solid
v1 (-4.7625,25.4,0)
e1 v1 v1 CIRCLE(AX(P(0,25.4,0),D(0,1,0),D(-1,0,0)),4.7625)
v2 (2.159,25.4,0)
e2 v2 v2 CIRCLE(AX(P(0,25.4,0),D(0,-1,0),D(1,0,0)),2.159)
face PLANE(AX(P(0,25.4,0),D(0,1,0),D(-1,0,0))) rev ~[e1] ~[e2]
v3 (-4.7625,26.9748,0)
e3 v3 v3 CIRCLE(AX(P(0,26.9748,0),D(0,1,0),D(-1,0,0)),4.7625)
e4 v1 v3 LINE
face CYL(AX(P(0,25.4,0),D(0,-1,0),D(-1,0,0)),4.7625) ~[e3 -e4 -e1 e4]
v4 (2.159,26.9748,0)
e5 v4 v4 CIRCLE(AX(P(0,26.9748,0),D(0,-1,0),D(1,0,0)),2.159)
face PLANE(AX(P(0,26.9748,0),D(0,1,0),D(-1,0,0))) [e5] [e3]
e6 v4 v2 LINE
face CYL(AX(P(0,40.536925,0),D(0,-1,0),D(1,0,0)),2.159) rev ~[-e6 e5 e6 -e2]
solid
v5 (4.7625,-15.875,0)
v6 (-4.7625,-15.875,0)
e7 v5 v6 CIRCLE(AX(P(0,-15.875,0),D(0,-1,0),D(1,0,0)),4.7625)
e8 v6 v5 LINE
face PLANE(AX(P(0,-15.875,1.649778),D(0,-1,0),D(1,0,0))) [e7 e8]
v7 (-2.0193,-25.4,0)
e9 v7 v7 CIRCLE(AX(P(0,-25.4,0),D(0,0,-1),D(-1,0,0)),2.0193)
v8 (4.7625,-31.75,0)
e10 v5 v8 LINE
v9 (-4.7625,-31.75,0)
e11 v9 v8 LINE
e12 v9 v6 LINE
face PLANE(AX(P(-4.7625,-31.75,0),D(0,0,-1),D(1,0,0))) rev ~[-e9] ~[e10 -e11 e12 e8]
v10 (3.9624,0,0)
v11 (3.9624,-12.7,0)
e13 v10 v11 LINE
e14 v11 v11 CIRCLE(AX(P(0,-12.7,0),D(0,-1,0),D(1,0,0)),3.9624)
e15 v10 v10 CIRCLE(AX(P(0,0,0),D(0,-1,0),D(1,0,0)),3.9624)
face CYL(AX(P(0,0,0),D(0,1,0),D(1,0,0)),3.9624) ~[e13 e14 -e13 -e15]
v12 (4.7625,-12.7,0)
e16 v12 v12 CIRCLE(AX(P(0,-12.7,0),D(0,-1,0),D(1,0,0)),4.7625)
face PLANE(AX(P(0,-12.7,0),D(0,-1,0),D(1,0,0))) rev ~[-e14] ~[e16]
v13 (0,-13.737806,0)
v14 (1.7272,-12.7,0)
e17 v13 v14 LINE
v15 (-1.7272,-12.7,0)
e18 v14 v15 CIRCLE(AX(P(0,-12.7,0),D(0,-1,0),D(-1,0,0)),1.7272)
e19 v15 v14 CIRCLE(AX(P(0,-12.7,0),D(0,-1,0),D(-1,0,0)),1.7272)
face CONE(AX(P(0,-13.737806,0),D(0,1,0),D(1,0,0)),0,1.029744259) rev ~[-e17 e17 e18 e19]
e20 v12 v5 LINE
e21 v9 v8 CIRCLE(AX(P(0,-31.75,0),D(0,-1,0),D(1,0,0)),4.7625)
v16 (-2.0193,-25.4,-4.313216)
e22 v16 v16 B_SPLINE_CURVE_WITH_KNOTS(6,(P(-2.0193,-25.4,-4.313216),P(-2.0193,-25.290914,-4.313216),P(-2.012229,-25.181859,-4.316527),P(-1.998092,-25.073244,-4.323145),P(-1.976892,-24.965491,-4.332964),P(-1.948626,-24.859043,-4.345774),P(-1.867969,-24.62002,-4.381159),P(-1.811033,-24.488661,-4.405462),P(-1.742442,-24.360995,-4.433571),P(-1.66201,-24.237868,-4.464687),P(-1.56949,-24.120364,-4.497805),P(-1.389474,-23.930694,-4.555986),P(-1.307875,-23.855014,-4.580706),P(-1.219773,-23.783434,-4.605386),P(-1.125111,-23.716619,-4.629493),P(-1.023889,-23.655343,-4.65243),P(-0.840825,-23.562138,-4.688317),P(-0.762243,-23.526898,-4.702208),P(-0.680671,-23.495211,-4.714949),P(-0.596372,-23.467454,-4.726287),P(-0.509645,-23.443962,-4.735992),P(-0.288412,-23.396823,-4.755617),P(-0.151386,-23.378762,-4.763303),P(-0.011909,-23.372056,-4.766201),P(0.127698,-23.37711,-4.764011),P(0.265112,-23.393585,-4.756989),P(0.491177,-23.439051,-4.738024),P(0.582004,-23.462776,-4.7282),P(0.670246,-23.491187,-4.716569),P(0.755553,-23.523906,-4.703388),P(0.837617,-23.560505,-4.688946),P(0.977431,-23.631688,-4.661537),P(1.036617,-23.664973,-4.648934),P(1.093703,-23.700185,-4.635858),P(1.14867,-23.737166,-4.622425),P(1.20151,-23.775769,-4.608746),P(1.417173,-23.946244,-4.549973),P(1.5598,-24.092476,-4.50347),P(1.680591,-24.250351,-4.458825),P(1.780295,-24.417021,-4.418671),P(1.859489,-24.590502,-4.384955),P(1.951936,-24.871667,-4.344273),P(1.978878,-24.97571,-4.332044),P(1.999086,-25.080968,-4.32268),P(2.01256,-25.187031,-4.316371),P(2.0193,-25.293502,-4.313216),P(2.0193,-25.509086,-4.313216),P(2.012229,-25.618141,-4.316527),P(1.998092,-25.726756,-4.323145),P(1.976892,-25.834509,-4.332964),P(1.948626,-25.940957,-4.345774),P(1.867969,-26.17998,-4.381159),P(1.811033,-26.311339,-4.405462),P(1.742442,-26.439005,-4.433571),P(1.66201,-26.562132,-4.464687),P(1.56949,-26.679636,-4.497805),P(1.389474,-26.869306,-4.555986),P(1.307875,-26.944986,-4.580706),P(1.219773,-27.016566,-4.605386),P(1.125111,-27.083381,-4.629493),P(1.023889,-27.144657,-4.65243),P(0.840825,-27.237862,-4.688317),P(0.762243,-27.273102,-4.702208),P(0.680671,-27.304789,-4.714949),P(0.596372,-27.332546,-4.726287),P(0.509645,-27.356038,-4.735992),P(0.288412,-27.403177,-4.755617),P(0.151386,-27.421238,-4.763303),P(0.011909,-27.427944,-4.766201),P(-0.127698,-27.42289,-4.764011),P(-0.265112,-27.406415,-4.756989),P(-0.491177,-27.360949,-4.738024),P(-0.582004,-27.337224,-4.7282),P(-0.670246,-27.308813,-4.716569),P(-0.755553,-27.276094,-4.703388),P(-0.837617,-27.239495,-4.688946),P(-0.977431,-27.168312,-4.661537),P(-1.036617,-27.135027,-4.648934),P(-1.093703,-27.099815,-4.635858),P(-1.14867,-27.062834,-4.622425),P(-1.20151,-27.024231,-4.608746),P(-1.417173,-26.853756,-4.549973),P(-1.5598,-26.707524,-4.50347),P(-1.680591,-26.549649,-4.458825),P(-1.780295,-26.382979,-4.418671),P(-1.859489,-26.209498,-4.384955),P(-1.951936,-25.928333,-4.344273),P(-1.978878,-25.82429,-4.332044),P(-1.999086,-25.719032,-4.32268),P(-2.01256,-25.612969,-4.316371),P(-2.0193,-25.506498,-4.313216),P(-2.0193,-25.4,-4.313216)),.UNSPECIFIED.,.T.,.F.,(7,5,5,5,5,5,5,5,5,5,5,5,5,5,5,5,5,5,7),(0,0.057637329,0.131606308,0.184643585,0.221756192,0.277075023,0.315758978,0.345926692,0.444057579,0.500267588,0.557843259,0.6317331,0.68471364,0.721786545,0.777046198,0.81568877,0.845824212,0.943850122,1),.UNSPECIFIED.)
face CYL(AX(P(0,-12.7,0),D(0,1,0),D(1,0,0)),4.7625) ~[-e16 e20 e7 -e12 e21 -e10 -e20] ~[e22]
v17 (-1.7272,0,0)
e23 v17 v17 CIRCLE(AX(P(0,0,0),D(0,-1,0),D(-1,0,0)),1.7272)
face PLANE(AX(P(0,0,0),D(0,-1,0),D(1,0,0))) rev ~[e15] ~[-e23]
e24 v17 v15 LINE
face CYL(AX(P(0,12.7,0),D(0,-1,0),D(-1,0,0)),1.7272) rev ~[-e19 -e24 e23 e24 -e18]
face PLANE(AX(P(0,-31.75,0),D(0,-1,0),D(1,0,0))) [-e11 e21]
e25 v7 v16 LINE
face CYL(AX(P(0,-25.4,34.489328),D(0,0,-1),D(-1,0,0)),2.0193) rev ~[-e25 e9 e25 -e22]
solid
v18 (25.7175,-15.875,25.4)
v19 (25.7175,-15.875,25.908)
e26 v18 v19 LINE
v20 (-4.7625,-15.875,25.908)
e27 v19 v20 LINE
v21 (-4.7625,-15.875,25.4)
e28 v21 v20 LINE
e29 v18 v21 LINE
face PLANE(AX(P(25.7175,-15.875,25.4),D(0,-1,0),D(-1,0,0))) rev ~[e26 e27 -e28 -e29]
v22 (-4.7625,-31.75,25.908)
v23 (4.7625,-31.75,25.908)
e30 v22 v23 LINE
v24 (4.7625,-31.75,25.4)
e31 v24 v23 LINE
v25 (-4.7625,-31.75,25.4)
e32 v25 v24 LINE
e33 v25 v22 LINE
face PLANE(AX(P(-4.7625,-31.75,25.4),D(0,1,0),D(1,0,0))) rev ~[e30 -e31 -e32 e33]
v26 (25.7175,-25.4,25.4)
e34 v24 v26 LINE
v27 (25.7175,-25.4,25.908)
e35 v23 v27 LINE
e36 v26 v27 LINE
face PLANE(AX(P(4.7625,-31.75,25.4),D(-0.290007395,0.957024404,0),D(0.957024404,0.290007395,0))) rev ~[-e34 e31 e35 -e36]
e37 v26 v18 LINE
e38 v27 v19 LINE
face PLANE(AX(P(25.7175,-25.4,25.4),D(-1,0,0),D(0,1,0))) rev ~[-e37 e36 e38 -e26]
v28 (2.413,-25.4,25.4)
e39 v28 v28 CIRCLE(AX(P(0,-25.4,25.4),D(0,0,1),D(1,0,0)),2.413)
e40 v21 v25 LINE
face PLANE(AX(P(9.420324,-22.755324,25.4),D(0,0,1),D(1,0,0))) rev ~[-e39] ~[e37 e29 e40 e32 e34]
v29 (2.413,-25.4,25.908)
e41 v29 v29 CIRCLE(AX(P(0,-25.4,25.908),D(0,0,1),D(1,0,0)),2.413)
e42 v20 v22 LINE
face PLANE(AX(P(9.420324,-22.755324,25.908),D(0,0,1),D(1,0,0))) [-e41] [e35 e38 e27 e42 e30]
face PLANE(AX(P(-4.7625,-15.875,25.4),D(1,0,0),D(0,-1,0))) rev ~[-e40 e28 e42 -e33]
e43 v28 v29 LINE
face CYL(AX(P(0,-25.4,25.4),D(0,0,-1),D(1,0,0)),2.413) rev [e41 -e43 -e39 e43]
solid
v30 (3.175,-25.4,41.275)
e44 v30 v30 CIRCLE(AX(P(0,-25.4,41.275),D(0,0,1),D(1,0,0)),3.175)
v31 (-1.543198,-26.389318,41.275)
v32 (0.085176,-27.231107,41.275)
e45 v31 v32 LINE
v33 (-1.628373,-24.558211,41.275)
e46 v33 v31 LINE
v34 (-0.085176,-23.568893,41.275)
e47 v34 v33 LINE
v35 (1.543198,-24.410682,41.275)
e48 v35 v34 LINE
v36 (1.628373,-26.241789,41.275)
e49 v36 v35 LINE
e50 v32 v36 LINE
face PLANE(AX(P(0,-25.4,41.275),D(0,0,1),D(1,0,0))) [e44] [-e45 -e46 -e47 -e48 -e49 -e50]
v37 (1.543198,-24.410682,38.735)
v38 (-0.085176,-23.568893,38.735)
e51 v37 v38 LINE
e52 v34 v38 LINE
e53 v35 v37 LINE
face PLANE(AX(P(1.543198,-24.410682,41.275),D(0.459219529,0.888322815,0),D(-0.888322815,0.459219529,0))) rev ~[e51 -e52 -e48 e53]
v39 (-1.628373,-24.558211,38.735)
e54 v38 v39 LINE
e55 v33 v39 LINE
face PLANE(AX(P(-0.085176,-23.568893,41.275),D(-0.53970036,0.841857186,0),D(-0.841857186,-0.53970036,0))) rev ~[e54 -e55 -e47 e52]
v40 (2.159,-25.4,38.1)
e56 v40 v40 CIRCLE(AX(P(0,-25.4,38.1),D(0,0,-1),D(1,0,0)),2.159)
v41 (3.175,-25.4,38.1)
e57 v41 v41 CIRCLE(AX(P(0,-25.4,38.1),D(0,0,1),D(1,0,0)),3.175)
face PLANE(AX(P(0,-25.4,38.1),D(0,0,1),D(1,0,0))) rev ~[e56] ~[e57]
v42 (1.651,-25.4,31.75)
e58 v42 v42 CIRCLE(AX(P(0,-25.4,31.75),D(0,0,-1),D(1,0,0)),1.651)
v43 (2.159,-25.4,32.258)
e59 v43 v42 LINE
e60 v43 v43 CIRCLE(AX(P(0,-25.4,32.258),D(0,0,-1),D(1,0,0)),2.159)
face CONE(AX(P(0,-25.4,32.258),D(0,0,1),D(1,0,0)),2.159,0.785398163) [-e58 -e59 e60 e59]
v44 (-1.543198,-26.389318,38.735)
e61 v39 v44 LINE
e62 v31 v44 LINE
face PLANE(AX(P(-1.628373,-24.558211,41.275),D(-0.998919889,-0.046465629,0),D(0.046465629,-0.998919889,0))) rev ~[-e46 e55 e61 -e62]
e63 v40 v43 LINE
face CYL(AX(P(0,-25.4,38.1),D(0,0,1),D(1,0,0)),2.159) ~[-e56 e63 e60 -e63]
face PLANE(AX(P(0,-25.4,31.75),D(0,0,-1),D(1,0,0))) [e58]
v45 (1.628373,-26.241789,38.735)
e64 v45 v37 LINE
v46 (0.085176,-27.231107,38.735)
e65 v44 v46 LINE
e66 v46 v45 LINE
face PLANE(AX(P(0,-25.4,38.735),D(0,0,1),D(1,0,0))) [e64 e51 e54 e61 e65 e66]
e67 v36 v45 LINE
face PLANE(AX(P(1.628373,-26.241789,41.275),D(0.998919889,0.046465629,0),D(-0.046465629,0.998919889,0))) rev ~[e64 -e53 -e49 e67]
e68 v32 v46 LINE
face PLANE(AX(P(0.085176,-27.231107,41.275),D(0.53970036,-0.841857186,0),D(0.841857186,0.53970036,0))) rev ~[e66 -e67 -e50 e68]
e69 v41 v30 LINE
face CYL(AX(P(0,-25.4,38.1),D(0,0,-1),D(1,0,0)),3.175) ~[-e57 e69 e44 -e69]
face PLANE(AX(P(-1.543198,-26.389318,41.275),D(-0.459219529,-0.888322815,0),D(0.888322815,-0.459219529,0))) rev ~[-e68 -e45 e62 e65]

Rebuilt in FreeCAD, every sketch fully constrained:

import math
import FreeCAD as App
import Part
import Sketcher

V = App.Vector
Q = App.Units.Quantity


def edges_at(feature, points):
    """Names of the edges that pass closest to the given points."""
    edges = feature.Shape.Edges
    near = lambda p: min(range(len(edges)), key=lambda i: edges[i].distToShape(Part.Vertex(*p))[0])
    return sorted({f"Edge{near(p) + 1}" for p in points})

doc = App.newDocument("Part")
body = doc.addObject("PartDesign::Body", "Body")

# Sketch on XZ plane
sketch1 = body.newObject("Sketcher::SketchObject", "Sketch")
sketch1.AttachmentSupport = (doc.getObject("XZ_Plane"), [""])
sketch1.MapMode = "FlatFace"
sketch1.addGeometry(Part.Circle(V(0, 0, 0), V(0, 0, 1), 4), False)
sketch1.addConstraint([
    Sketcher.Constraint("Coincident", 0, 3, -1, 1),
    Sketcher.Constraint("Diameter", 0, Q("0.312 in")),
])
pad1 = body.newObject("PartDesign::Pad", "Pad")
pad1.Profile = sketch1
pad1.Length = Q("0.5 in")

# Sketch on XZ plane
sketch2 = body.newObject("Sketcher::SketchObject", "Sketch001")
sketch2.AttachmentSupport = (doc.getObject("XZ_Plane"), [""])
sketch2.MapMode = "FlatFace"
sketch2.AttachmentOffset = App.Placement(V(0, 0, 0.5 * 25.4), App.Rotation())
sketch2.addGeometry(Part.Circle(V(0, 0, 0), V(0, 0, 1), 4.8), False)
sketch2.addConstraint([
    Sketcher.Constraint("Coincident", 0, 3, -1, 1),
    Sketcher.Constraint("Diameter", 0, Q("0.375 in")),
])
pad2 = body.newObject("PartDesign::Pad", "Pad001")
pad2.Profile = sketch2
pad2.Length = Q("0.75 in")

# Sketch on XZ plane
sketch3 = body.newObject("Sketcher::SketchObject", "Sketch002")
sketch3.AttachmentSupport = (doc.getObject("XZ_Plane"), [""])
sketch3.MapMode = "FlatFace"
sketch3.addGeometry(Part.Circle(V(0, 0, 0), V(0, 0, 1), 1.7), False)
sketch3.addConstraint([
    Sketcher.Constraint("Coincident", 0, 3, -1, 1),
    Sketcher.Constraint("Diameter", 0, Q("0.136 in")),
])
doc.recompute()
hole = body.newObject("PartDesign::Hole", "Hole")
hole.Profile = sketch3
hole.ThreadType = "None"
hole.Diameter = Q("0.136 in")
hole.DepthType = "Dimension"
hole.Depth = Q("0.5 in")
hole.DrillPoint = "Angled"
hole.DrillPointAngle = 118
hole.Reversed = True

# Sketch on XZ plane
sketch4 = body.newObject("Sketcher::SketchObject", "Sketch003")
sketch4.AttachmentSupport = (doc.getObject("XZ_Plane"), [""])
sketch4.MapMode = "FlatFace"
sketch4.AttachmentOffset = App.Placement(V(0, 0, 1.25 * 25.4), App.Rotation())
sketch4.addGeometry([
    Part.LineSegment(V(-4.8, 0, 0), V(4.8, 0, 0)),
    Part.ArcOfCircle(Part.Circle(V(0, 0, 0), V(0, 0, 1), 4.8), math.radians(0), math.radians(180)),
], False)
sketch4.addConstraint([
    Sketcher.Constraint("Coincident", 0, 1, 1, 2),
    Sketcher.Constraint("Coincident", 1, 1, 0, 2),
    Sketcher.Constraint("Horizontal", 0),
    Sketcher.Constraint("Coincident", 1, 3, -1, 1),
    Sketcher.Constraint("PointOnObject", 0, 1, -1),
    Sketcher.Constraint("Radius", 1, Q("0.1875 in")),
])
pocket1 = body.newObject("PartDesign::Pocket", "Pocket")
pocket1.Profile = sketch4
pocket1.Length = Q("0.625 in")

# Sketch on XY plane
sketch5 = body.newObject("Sketcher::SketchObject", "Sketch004")
sketch5.AttachmentSupport = (doc.getObject("XY_Plane"), [""])
sketch5.MapMode = "FlatFace"
sketch5.addGeometry(Part.Circle(V(0, -25.4, 0), V(0, 0, 1), 2), False)
sketch5.addConstraint([
    Sketcher.Constraint("PointOnObject", 0, 3, -2),
    Sketcher.Constraint("Diameter", 0, Q("0.159 in")),
    Sketcher.Constraint("DistanceY", 0, 3, -1, 1, Q("1 in")),
])
doc.recompute()
hole2 = body.newObject("PartDesign::Hole", "Hole001")
hole2.Profile = sketch5
hole2.ThreadType = "None"
hole2.Diameter = Q("0.159 in")
hole2.DepthType = "ThroughAll"
body2 = doc.addObject("PartDesign::Body", "Body001")

# Sketch on XY plane
sketch6 = body2.newObject("Sketcher::SketchObject", "Sketch005")
sketch6.AttachmentSupport = (doc.getObject("XY_Plane001"), [""])
sketch6.MapMode = "FlatFace"
sketch6.AttachmentOffset = App.Placement(V(0, 0, 1 * 25.4), App.Rotation())
sketch6.addGeometry([
    Part.LineSegment(V(25.7, -15.9, 0), V(-4.8, -15.9, 0)),  # 0
    Part.LineSegment(V(-4.8, -15.9, 0), V(-4.8, -31.8, 0)),  # 1
    Part.LineSegment(V(-4.8, -31.8, 0), V(4.8, -31.8, 0)),  # 2
    Part.LineSegment(V(4.8, -31.8, 0), V(25.7, -25.4, 0)),  # 3
    Part.LineSegment(V(25.7, -25.4, 0), V(25.7, -15.9, 0)),  # 4
    Part.Circle(V(0, -25.4, 0), V(0, 0, 1), 2.4),  # 5
], False)
sketch6.addConstraint([
    Sketcher.Constraint("Coincident", 0, 2, 1, 1),
    Sketcher.Constraint("Coincident", 1, 2, 2, 1),
    Sketcher.Constraint("Coincident", 2, 2, 3, 1),
    Sketcher.Constraint("Coincident", 3, 2, 4, 1),
    Sketcher.Constraint("Coincident", 4, 2, 0, 1),
    Sketcher.Constraint("Horizontal", 0),
    Sketcher.Constraint("Vertical", 1),
    Sketcher.Constraint("Horizontal", 2),
    Sketcher.Constraint("Vertical", 4),
    Sketcher.Constraint("PointOnObject", 5, 3, -2),
    Sketcher.Constraint("Horizontal", 5, 3, 3, 2),
    Sketcher.Constraint("Equal", 2, 4),
    Sketcher.Constraint("Diameter", 5, Q("0.19 in")),
    Sketcher.Constraint("DistanceX", 0, 2, 0, 1, Q("1.2 in")),
    Sketcher.Constraint("DistanceY", 5, 3, -1, 1, Q("1 in")),
    Sketcher.Constraint("DistanceX", 2, 1, 2, 2, Q("0.375 in")),
    Sketcher.Constraint("DistanceY", 1, 2, 1, 1, Q("0.625 in")),
    Sketcher.Constraint("DistanceX", 0, 2, -1, 1, Q("0.1875 in")),
])
pad3 = body2.newObject("PartDesign::Pad", "Pad002")
pad3.Profile = sketch6
pad3.Length = Q("0.02 in")
body3 = doc.addObject("PartDesign::Body", "Body002")

# Sketch on XZ plane
sketch7 = body3.newObject("Sketcher::SketchObject", "Sketch006")
sketch7.AttachmentSupport = (doc.getObject("XZ_Plane002"), [""])
sketch7.MapMode = "FlatFace"
sketch7.AttachmentOffset = App.Placement(V(0, 0, -1 * 25.4), App.Rotation())
sketch7.addGeometry(Part.Circle(V(0, 0, 0), V(0, 0, 1), 4.8), False)
sketch7.addConstraint([
    Sketcher.Constraint("Coincident", 0, 3, -1, 1),
    Sketcher.Constraint("Diameter", 0, Q("0.375 in")),
])
pad4 = body3.newObject("PartDesign::Pad", "Pad003")
pad4.Profile = sketch7
pad4.Length = Q("0.062 in")
pad4.Reversed = True

# Sketch on XZ plane
sketch8 = body3.newObject("Sketcher::SketchObject", "Sketch007")
sketch8.AttachmentSupport = (doc.getObject("XZ_Plane002"), [""])
sketch8.MapMode = "FlatFace"
sketch8.AttachmentOffset = App.Placement(V(0, 0, -1.062 * 25.4), App.Rotation())
sketch8.addGeometry(Part.Circle(V(0, 0, 0), V(0, 0, 1), 2.2), False)
sketch8.addConstraint([
    Sketcher.Constraint("Coincident", 0, 3, -1, 1),
    Sketcher.Constraint("Diameter", 0, Q("0.17 in")),
])
doc.recompute()
hole3 = body3.newObject("PartDesign::Hole", "Hole002")
hole3.Profile = sketch8
hole3.ThreadType = "None"
hole3.Diameter = Q("0.17 in")
hole3.DepthType = "ThroughAll"
hole3.Reversed = True
body4 = doc.addObject("PartDesign::Body", "Body003")

# Sketch on XY plane
sketch9 = body4.newObject("Sketcher::SketchObject", "Sketch008")
sketch9.AttachmentSupport = (doc.getObject("XY_Plane003"), [""])
sketch9.MapMode = "FlatFace"
sketch9.AttachmentOffset = App.Placement(V(0, 0, 1.5 * 25.4), App.Rotation())
sketch9.addGeometry(Part.Circle(V(0, -25.4, 0), V(0, 0, 1), 3.2), False)
sketch9.addConstraint([
    Sketcher.Constraint("PointOnObject", 0, 3, -2),
    Sketcher.Constraint("Diameter", 0, Q("0.25 in")),
    Sketcher.Constraint("DistanceY", 0, 3, -1, 1, Q("1 in")),
])
pad5 = body4.newObject("PartDesign::Pad", "Pad004")
pad5.Profile = sketch9
pad5.Length = Q("0.125 in")

# Sketch on XY plane
sketch10 = body4.newObject("Sketcher::SketchObject", "Sketch009")
sketch10.AttachmentSupport = (doc.getObject("XY_Plane003"), [""])
sketch10.MapMode = "FlatFace"
sketch10.AttachmentOffset = App.Placement(V(0, 0, 1.625 * 25.4), App.Rotation())
sketch10.addGeometry([
    Part.LineSegment(V(-1.5, -26.4, 0), V(0.1, -27.2, 0)),  # 0
    Part.LineSegment(V(0.1, -27.2, 0), V(1.6, -26.2, 0)),  # 1
    Part.LineSegment(V(1.6, -26.2, 0), V(1.5, -24.4, 0)),  # 2
    Part.LineSegment(V(1.5, -24.4, 0), V(-0.1, -23.6, 0)),  # 3
    Part.LineSegment(V(-0.1, -23.6, 0), V(-1.6, -24.6, 0)),  # 4
    Part.LineSegment(V(-1.6, -24.6, 0), V(-1.5, -26.4, 0)),  # 5
], False)
sketch10.addConstraint([
    Sketcher.Constraint("Coincident", 0, 2, 1, 1),
    Sketcher.Constraint("Coincident", 1, 2, 2, 1),
    Sketcher.Constraint("Coincident", 2, 2, 3, 1),
    Sketcher.Constraint("Coincident", 3, 2, 4, 1),
    Sketcher.Constraint("Coincident", 4, 2, 5, 1),
    Sketcher.Constraint("Coincident", 5, 2, 0, 1),
    Sketcher.Constraint("Parallel", 0, 3),
    Sketcher.Constraint("Parallel", 1, 4),
    Sketcher.Constraint("Parallel", 2, 5),
    Sketcher.Constraint("Equal", 0, 1),
    Sketcher.Constraint("Equal", 1, 2),
    Sketcher.Constraint("Equal", 2, 3),
    Sketcher.Constraint("DistanceY", 1, 2, -1, 1, 26.241789),
    Sketcher.Constraint("DistanceY", 4, 2, -1, 1, 24.558211),
    Sketcher.Constraint("DistanceY", 2, 2, 3, 2, 0.841789),
    Sketcher.Constraint("DistanceX", 3, 2, 1, 2, 1.713549),
    Sketcher.Constraint("DistanceX", 3, 2, 0, 2, 0.170351),
    Sketcher.Constraint("DistanceX", -1, 1, 0, 2, 0.085176),
])
pocket2 = body4.newObject("PartDesign::Pocket", "Pocket001")
pocket2.Profile = sketch10
pocket2.Length = Q("0.1 in")

# Sketch on XY plane
sketch11 = body4.newObject("Sketcher::SketchObject", "Sketch010")
sketch11.AttachmentSupport = (doc.getObject("XY_Plane003"), [""])
sketch11.MapMode = "FlatFace"
sketch11.AttachmentOffset = App.Placement(V(0, 0, 1.5 * 25.4), App.Rotation())
sketch11.addGeometry(Part.Circle(V(0, -25.4, 0), V(0, 0, 1), 2.2), False)
sketch11.addConstraint([
    Sketcher.Constraint("PointOnObject", 0, 3, -2),
    Sketcher.Constraint("Diameter", 0, Q("0.17 in")),
    Sketcher.Constraint("DistanceY", 0, 3, -1, 1, Q("1 in")),
])
pad6 = body4.newObject("PartDesign::Pad", "Pad005")
pad6.Profile = sketch11
pad6.Length = Q("0.25 in")
pad6.Reversed = True
doc.recompute()

chamfer = body4.newObject("PartDesign::Chamfer", "Chamfer")
chamfer.Base = (pad6, edges_at(pad6, [(-2.159, -25.4, 31.75)]))
chamfer.Size = Q("0.02 in")

doc.recompute()
